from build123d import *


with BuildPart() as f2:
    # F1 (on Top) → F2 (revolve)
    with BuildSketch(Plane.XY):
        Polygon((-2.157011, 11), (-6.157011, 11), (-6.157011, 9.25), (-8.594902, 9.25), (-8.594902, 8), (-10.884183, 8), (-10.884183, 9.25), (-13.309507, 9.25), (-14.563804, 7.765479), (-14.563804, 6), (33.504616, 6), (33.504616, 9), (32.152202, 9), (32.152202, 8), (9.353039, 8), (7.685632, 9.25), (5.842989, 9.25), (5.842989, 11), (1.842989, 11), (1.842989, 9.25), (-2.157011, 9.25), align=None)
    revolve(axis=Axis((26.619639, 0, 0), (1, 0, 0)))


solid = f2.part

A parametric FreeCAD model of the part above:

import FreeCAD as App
import Part
import Sketcher


def add_polygon(sketch, points):
    """Adds a closed chain of lines whose ends are joined by coincident constraints."""
    first, n = sketch.GeometryCount, len(points)
    for a, b in zip(points, points[1:] + points[:1]):
        sketch.addGeometry(Part.LineSegment(App.Vector(*a, 0), App.Vector(*b, 0)), False)
    for i in range(n):
        sketch.addConstraint(Sketcher.Constraint("Coincident", first + i, 2, first + (i + 1) % n, 1))

doc = App.newDocument("Part")
body = doc.addObject("PartDesign::Body", "Body")

# Sketch on XY plane
sketch1 = body.newObject("Sketcher::SketchObject", "Sketch")
sketch1.AttachmentSupport = (doc.getObject("XY_Plane"), [""])
sketch1.MapMode = "FlatFace"
add_polygon(sketch1, [(-2.2, 11), (-6.2, 11), (-6.2, 9.2), (-8.6, 9.2), (-8.6, 8), (-10.9, 8), (-10.9, 9.2), (-13.3, 9.2), (-14.6, 7.8), (-14.6, 6), (33.5, 6), (33.5, 9), (32.2, 9), (32.2, 8), (9.4, 8), (7.7, 9.2), (5.8, 9.2), (5.8, 11), (1.8, 11), (1.8, 9.2), (-2.2, 9.2)])  # lines 0-20
sketch1.addConstraint(Sketcher.Constraint("Horizontal", 0))
sketch1.addConstraint(Sketcher.Constraint("Vertical", 1))
sketch1.addConstraint(Sketcher.Constraint("Horizontal", 2))
sketch1.addConstraint(Sketcher.Constraint("Vertical", 3))
sketch1.addConstraint(Sketcher.Constraint("Horizontal", 4))
sketch1.addConstraint(Sketcher.Constraint("Vertical", 5))
sketch1.addConstraint(Sketcher.Constraint("Horizontal", 6))
sketch1.addConstraint(Sketcher.Constraint("Vertical", 8))
sketch1.addConstraint(Sketcher.Constraint("Horizontal", 9))
sketch1.addConstraint(Sketcher.Constraint("Vertical", 10))
sketch1.addConstraint(Sketcher.Constraint("Horizontal", 11))
sketch1.addConstraint(Sketcher.Constraint("Vertical", 12))
sketch1.addConstraint(Sketcher.Constraint("Horizontal", 13))
sketch1.addConstraint(Sketcher.Constraint("Horizontal", 15))
sketch1.addConstraint(Sketcher.Constraint("Vertical", 16))
sketch1.addConstraint(Sketcher.Constraint("Horizontal", 17))
sketch1.addConstraint(Sketcher.Constraint("Vertical", 18))
sketch1.addConstraint(Sketcher.Constraint("Horizontal", 19))
sketch1.addConstraint(Sketcher.Constraint("Vertical", 20))
sketch1.addConstraint(Sketcher.Constraint("Horizontal", 2, 2, 5, 2))
sketch1.addConstraint(Sketcher.Constraint("Horizontal", 4, 2, 12, 2))
sketch1.addConstraint(Sketcher.Constraint("Horizontal", 6, 2, 14, 2))
sketch1.addConstraint(Sketcher.Constraint("Horizontal", 0, 2, 16, 2))
sketch1.addConstraint(Sketcher.Constraint("Horizontal", 15, 2, 18, 2))
sketch1.addConstraint(Sketcher.Constraint("Equal", 0, 17))
sketch1.addConstraint(Sketcher.Constraint("Equal", 17, 19))
sketch1.addConstraint(Sketcher.Constraint("DistanceX", 0, 2, 0, 1, 4.0))
sketch1.addConstraint(Sketcher.Constraint("DistanceY", 10, 1, 10, 2, 3.0))
sketch1.addConstraint(Sketcher.Constraint("DistanceY", 12, 2, 12, 1, 1.0))
sketch1.addConstraint(Sketcher.Constraint("DistanceY", -1, 1, 0, 2, 11.0))
sketch1.addConstraint(Sketcher.Constraint("DistanceY", -1, 1, 3, 2, 8.0))
sketch1.addConstraint(Sketcher.Constraint("DistanceY", 1, 2, 1, 1, 1.75))
sketch1.addConstraint(Sketcher.Constraint("DistanceX", 2, 2, 2, 1, 2.437891))
sketch1.addConstraint(Sketcher.Constraint("DistanceX", 4, 2, 4, 1, 2.289281))
sketch1.addConstraint(Sketcher.Constraint("DistanceX", 9, 1, 9, 2, 48.06842))
sketch1.addConstraint(Sketcher.Constraint("DistanceY", 8, 2, 8, 1, 1.765479))
sketch1.addConstraint(Sketcher.Constraint("DistanceX", 2, 2, -1, 1, 8.594902))
sketch1.addConstraint(Sketcher.Constraint("DistanceX", 4, 2, 9, 2, 44.388799))
sketch1.addConstraint(Sketcher.Constraint("DistanceX", 6, 2, 6, 1, 2.425324))
sketch1.addConstraint(Sketcher.Constraint("DistanceX", 11, 2, 11, 1, 1.352414))
sketch1.addConstraint(Sketcher.Constraint("DistanceX", 13, 2, 13, 1, 22.799163))
sketch1.addConstraint(Sketcher.Constraint("DistanceX", 15, 2, 15, 1, 1.842643))
revolution = body.newObject("PartDesign::Revolution", "Revolution")
revolution.Profile = sketch1
revolution.ReferenceAxis = (sketch1, ["H_Axis"])
revolution.Angle = 360

doc.recompute()
